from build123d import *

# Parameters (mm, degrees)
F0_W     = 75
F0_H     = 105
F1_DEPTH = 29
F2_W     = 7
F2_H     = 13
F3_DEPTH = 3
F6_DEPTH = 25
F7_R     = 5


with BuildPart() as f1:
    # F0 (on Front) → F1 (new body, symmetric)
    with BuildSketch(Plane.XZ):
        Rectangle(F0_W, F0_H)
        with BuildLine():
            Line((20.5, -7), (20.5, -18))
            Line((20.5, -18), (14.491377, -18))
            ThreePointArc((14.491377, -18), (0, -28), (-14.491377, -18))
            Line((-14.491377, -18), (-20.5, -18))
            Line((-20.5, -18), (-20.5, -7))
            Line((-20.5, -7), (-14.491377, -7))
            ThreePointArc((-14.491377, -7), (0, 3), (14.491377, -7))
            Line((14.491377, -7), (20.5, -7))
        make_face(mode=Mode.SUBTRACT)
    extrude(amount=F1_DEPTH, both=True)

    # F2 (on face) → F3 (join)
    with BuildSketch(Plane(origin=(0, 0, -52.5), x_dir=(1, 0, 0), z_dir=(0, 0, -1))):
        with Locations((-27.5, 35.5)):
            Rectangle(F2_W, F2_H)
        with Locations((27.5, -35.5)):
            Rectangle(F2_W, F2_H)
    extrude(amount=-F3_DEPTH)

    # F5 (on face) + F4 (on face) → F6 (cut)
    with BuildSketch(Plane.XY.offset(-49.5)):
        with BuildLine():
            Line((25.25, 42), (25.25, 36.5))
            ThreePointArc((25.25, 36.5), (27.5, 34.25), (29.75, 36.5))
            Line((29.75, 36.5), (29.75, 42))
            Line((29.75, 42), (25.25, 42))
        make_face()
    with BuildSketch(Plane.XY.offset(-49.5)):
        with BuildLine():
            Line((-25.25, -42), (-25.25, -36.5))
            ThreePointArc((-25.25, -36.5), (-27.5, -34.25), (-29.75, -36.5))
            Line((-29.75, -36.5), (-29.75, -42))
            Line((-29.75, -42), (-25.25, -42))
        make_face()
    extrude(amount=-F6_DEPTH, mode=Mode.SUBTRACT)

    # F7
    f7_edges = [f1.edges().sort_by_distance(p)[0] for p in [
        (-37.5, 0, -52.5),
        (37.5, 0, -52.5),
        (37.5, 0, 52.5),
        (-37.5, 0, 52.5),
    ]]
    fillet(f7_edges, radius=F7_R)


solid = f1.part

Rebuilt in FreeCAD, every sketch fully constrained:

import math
import FreeCAD as App
import Part
import Sketcher
from FreeCAD import Vector


def edges_at(feature, points):
    """Names of the edges that pass closest to the given points."""
    edges = feature.Shape.Edges
    near = lambda p: min(range(len(edges)), key=lambda i: edges[i].distToShape(Part.Vertex(*p))[0])
    return sorted({f"Edge{near(p) + 1}" for p in points})


def add_polygon(sketch, points):
    """Adds a closed chain of lines whose ends are joined by coincident constraints."""
    first, n = sketch.GeometryCount, len(points)
    for a, b in zip(points, points[1:] + points[:1]):
        sketch.addGeometry(Part.LineSegment(App.Vector(*a, 0), App.Vector(*b, 0)), False)
    for i in range(n):
        sketch.addConstraint(Sketcher.Constraint("Coincident", first + i, 2, first + (i + 1) % n, 1))

doc = App.newDocument("Part")
params = doc.addObject("Spreadsheet::Sheet", "Params")
for row, (alias, value) in enumerate([
    ("sketch1_radius", "15.5 mm"),
    ("sketch1_width", "75 mm"),
    ("sketch1_height", "105 mm"),
    ("sketch1_height2", "11 mm"),
    ("pad1_length", "58 mm"),
    ("sketch2_width", "7 mm"),
    ("sketch2_height", "13 mm"),
    ("pad2_length", "3 mm"),
    ("sketch3_radius", "2.25 mm"),
    ("sketch3_height", "5.5 mm"),
    ("pocket1_length", "25 mm"),
    ("fillet_radius", "5 mm"),
], start=1):
    params.set(f"A{row}", alias)
    params.set(f"B{row}", "=" + value)
    params.setAlias(f"B{row}", alias)

body = doc.addObject("PartDesign::Body", "Body")

# Sketch on XZ plane
sketch1 = body.newObject("Sketcher::SketchObject", "Sketch")
sketch1.AttachmentSupport = (doc.getObject("XZ_Plane"), [""])
sketch1.MapMode = "FlatFace"
add_polygon(sketch1, [(-37.5, 52.5), (-37.5, -52.5), (37.5, -52.5), (37.5, 52.5)])  # lines 0-3
sketch1.addGeometry(Part.LineSegment(Vector(14.491377, -7, 0), Vector(20.5, -7, 0)), False)  # 4
sketch1.addGeometry(Part.LineSegment(Vector(20.5, -7, 0), Vector(20.5, -18, 0)), False)  # 5
sketch1.addGeometry(Part.LineSegment(Vector(20.5, -18, 0), Vector(14.491377, -18, 0)), False)  # 6
sketch1.addGeometry(Part.ArcOfCircle(Part.Circle(Vector(0, -12.5, 0), Vector(0, 0, 1), 15.5), math.radians(-159.216439), math.radians(-20.783561)), False)  # 7
sketch1.addGeometry(Part.LineSegment(Vector(-14.491377, -18, 0), Vector(-20.5, -18, 0)), False)  # 8
sketch1.addGeometry(Part.LineSegment(Vector(-20.5, -18, 0), Vector(-20.5, -7, 0)), False)  # 9
sketch1.addGeometry(Part.LineSegment(Vector(-20.5, -7, 0), Vector(-14.491377, -7, 0)), False)  # 10
sketch1.addGeometry(Part.ArcOfCircle(Part.Circle(Vector(0, -12.5, 0), Vector(0, 0, 1), 15.5), math.radians(20.783561), math.radians(159.216439)), False)  # 11
sketch1.addConstraint([
    Sketcher.Constraint("Coincident", 4, 2, 5, 1),
    Sketcher.Constraint("Coincident", 5, 2, 6, 1),
    Sketcher.Constraint("Coincident", 6, 2, 7, 2),
    Sketcher.Constraint("Coincident", 7, 1, 8, 1),
    Sketcher.Constraint("Coincident", 8, 2, 9, 1),
    Sketcher.Constraint("Coincident", 9, 2, 10, 1),
    Sketcher.Constraint("Coincident", 10, 2, 11, 2),
    Sketcher.Constraint("Coincident", 11, 1, 4, 1),
    Sketcher.Constraint("Vertical", 0),
    Sketcher.Constraint("Horizontal", 1),
    Sketcher.Constraint("Vertical", 2),
    Sketcher.Constraint("Horizontal", 3),
    Sketcher.Constraint("Horizontal", 4),
    Sketcher.Constraint("Vertical", 5),
    Sketcher.Constraint("Horizontal", 6),
    Sketcher.Constraint("Horizontal", 8),
    Sketcher.Constraint("Vertical", 9),
    Sketcher.Constraint("Horizontal", 10),
    Sketcher.Constraint("Coincident", 11, 3, 7, 3),
    Sketcher.Constraint("Equal", 7, 11),
    Sketcher.Constraint("Symmetric", 0, 2, 2, 2, -1, 1),
    Sketcher.Constraint("Symmetric", 6, 2, 7, 1, -2),
    Sketcher.Constraint("Symmetric", 4, 2, 9, 2, -2),
    Sketcher.Constraint("Vertical", 7, 1, 10, 2),
    Sketcher.Constraint("Radius", 7, 15.5),
    Sketcher.Constraint("DistanceX", 1, 1, 1, 2, 75.0),
    Sketcher.Constraint("DistanceY", 0, 2, 0, 1, 105.0),
    Sketcher.Constraint("DistanceY", 5, 2, 5, 1, 11.0),
    Sketcher.Constraint("DistanceY", 4, 2, -1, 1, 7.0),
    Sketcher.Constraint("DistanceX", 4, 2, 1, 2, 17.0),
])
sketch1.setExpression("Constraints[28]", "Params.sketch1_radius")
sketch1.setExpression("Constraints[29]", "Params.sketch1_width")
sketch1.setExpression("Constraints[30]", "Params.sketch1_height")
sketch1.setExpression("Constraints[31]", "Params.sketch1_height2")
pad1 = body.newObject("PartDesign::Pad", "Pad")
pad1.Profile = sketch1
pad1.setExpression("Length", "Params.pad1_length")
pad1.Midplane = True

# Sketch on XY plane
sketch2 = body.newObject("Sketcher::SketchObject", "Sketch001")
sketch2.AttachmentSupport = (doc.getObject("XY_Plane"), [""])
sketch2.MapMode = "FlatFace"
sketch2.AttachmentOffset = App.Placement(Vector(0, 0, -52.5), App.Rotation())
add_polygon(sketch2, [(-31, -42), (-31, -29), (-24, -29), (-24, -42)])  # lines 0-3
add_polygon(sketch2, [(24, 29), (24, 42), (31, 42), (31, 29)])  # lines 4-7
sketch2.addConstraint([
    Sketcher.Constraint("Vertical", 0),
    Sketcher.Constraint("Horizontal", 1),
    Sketcher.Constraint("Vertical", 2),
    Sketcher.Constraint("Horizontal", 3),
    Sketcher.Constraint("Vertical", 4),
    Sketcher.Constraint("Horizontal", 5),
    Sketcher.Constraint("Vertical", 6),
    Sketcher.Constraint("Horizontal", 7),
    Sketcher.Constraint("Symmetric", 2, 2, 4, 2, -1, 1),
    Sketcher.Constraint("Symmetric", 0, 2, 6, 2, -1, 1),
    Sketcher.Constraint("DistanceX", 1, 1, 1, 2, 7.0),
    Sketcher.Constraint("DistanceY", 0, 1, 0, 2, 13.0),
    Sketcher.Constraint("DistanceX", 0, 2, -1, 1, 31.0),
    Sketcher.Constraint("DistanceY", 0, 2, -1, 1, 29.0),
])
sketch2.setExpression("Constraints[18]", "Params.sketch2_width")
sketch2.setExpression("Constraints[19]", "Params.sketch2_height")
pad2 = body.newObject("PartDesign::Pad", "Pad001")
pad2.Profile = sketch2
pad2.setExpression("Length", "Params.pad2_length")

# Sketch on XY plane
sketch3 = body.newObject("Sketcher::SketchObject", "Sketch002")
sketch3.AttachmentSupport = (doc.getObject("XY_Plane"), [""])
sketch3.MapMode = "FlatFace"
sketch3.AttachmentOffset = App.Placement(Vector(0, 0, -49.5), App.Rotation())
sketch3.addGeometry([
    Part.LineSegment(Vector(25.25, 42, 0), Vector(25.25, 36.5, 0)),  # 0
    Part.ArcOfCircle(Part.Circle(Vector(27.5, 36.5, 0), Vector(0, 0, 1), 2.25), math.radians(180), math.radians(360)),  # 1
    Part.LineSegment(Vector(29.75, 36.5, 0), Vector(29.75, 42, 0)),  # 2
    Part.LineSegment(Vector(29.75, 42, 0), Vector(25.25, 42, 0)),  # 3
    Part.LineSegment(Vector(-25.25, -42, 0), Vector(-25.25, -36.5, 0)),  # 4
    Part.ArcOfCircle(Part.Circle(Vector(-27.5, -36.5, 0), Vector(0, 0, 1), 2.25), math.radians(0), math.radians(180)),  # 5
    Part.LineSegment(Vector(-29.75, -36.5, 0), Vector(-29.75, -42, 0)),  # 6
    Part.LineSegment(Vector(-29.75, -42, 0), Vector(-25.25, -42, 0)),  # 7
], False)
sketch3.addConstraint([
    Sketcher.Constraint("Tangent", 0, 2, 1, 1),
    Sketcher.Constraint("Tangent", 1, 2, 2, 1),
    Sketcher.Constraint("Coincident", 2, 2, 3, 1),
    Sketcher.Constraint("Coincident", 3, 2, 0, 1),
    Sketcher.Constraint("Tangent", 4, 2, 5, 1),
    Sketcher.Constraint("Tangent", 5, 2, 6, 1),
    Sketcher.Constraint("Coincident", 6, 2, 7, 1),
    Sketcher.Constraint("Coincident", 7, 2, 4, 1),
    Sketcher.Constraint("Vertical", 0),
    Sketcher.Constraint("Vertical", 2),
    Sketcher.Constraint("Horizontal", 3),
    Sketcher.Constraint("Vertical", 4),
    Sketcher.Constraint("Vertical", 6),
    Sketcher.Constraint("Horizontal", 7),
    Sketcher.Constraint("Equal", 1, 5),
    Sketcher.Constraint("Symmetric", 1, 3, 5, 3, -1, 1),
    Sketcher.Constraint("Equal", 2, 4),
    Sketcher.Constraint("Radius", 1, 2.25),
    Sketcher.Constraint("DistanceY", 0, 2, 0, 1, 5.5),
    Sketcher.Constraint("DistanceY", -1, 1, 2, 2, 42.0),
    Sketcher.Constraint("DistanceX", 5, 3, 1, 3, 55.0),
])
sketch3.setExpression("Constraints[17]", "Params.sketch3_radius")
sketch3.setExpression("Constraints[18]", "Params.sketch3_height")
pocket1 = body.newObject("PartDesign::Pocket", "Pocket")
pocket1.Profile = sketch3
pocket1.setExpression("Length", "Params.pocket1_length")
doc.recompute()

fillet = body.newObject("PartDesign::Fillet", "Fillet")
fillet.Base = (pocket1, edges_at(pocket1, [
    (-37.5, 0, -52.5),
    (37.5, 0, -52.5),
    (37.5, 0, 52.5),
    (-37.5, 0, 52.5),
]))
fillet.setExpression("Radius", "Params.fillet_radius")

doc.recompute()
